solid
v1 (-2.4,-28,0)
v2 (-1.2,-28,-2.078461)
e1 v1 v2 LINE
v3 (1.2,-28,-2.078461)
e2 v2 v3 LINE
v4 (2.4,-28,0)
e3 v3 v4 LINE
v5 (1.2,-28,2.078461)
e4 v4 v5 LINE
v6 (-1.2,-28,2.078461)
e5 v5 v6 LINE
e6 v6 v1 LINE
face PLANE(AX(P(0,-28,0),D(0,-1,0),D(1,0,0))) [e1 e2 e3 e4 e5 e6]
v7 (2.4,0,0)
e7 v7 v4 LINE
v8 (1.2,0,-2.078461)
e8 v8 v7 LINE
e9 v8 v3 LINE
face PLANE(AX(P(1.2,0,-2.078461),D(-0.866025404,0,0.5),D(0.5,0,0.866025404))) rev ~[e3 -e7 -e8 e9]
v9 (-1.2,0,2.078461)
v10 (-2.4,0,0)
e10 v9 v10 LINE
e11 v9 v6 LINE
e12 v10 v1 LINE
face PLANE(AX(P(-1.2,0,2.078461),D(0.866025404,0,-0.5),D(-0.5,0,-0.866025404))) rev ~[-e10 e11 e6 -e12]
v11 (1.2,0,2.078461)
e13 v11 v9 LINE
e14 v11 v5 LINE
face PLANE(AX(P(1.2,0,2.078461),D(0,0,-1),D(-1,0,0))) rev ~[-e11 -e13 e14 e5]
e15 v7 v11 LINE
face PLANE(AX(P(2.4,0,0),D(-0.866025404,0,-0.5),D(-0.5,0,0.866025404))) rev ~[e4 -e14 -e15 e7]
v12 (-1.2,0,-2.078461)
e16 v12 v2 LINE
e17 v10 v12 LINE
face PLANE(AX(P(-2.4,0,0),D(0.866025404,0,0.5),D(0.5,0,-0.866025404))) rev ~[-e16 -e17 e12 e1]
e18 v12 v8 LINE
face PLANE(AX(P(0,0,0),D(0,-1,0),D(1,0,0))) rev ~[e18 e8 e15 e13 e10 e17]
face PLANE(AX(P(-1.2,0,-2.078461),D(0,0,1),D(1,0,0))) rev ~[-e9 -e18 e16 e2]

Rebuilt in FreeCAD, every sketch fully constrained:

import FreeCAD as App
import Part
import Sketcher
Q = App.Units.Quantity

doc = App.newDocument("Part")
body = doc.addObject("PartDesign::Body", "Body")

sketch1 = body.newObject("Sketcher::SketchObject", "Sketch")
sketch1.AttachmentSupport = (doc.getObject("XZ_Plane"), [""])
sketch1.MapMode = "FlatFace"
sketch1.addGeometry([
    Part.LineSegment(App.Vector(7, 12, 0), App.Vector(-7, 12, 0)),
    Part.LineSegment(App.Vector(-7, 12, 0), App.Vector(-13, 0, 0)),
    Part.LineSegment(App.Vector(-13, 0, 0), App.Vector(-7, -12, 0)),
    Part.LineSegment(App.Vector(-7, -12, 0), App.Vector(7, -12, 0)),
    Part.LineSegment(App.Vector(7, -12, 0), App.Vector(13, 0, 0)),
    Part.LineSegment(App.Vector(13, 0, 0), App.Vector(7, 12, 0)),
], False)
sketch1.addConstraint([
    Sketcher.Constraint("Coincident", 0, 2, 1, 1),
    Sketcher.Constraint("Coincident", 1, 2, 2, 1),
    Sketcher.Constraint("Coincident", 2, 2, 3, 1),
    Sketcher.Constraint("Coincident", 3, 2, 4, 1),
    Sketcher.Constraint("Coincident", 4, 2, 5, 1),
    Sketcher.Constraint("Coincident", 5, 2, 0, 1),
    Sketcher.Constraint("Horizontal", 0),
    Sketcher.Constraint("Horizontal", 3),
    Sketcher.Constraint("Symmetric", 0, 2, 3, 2, -1, 1),
    Sketcher.Constraint("Symmetric", 1, 2, 4, 2, -1, 1),
    Sketcher.Constraint("PointOnObject", 1, 2, -1),
    Sketcher.Constraint("Parallel", 2, 5),
    Sketcher.Constraint("Vertical", 0, 2, 2, 2),
    Sketcher.Constraint("Angle", 1, Q("-120 deg")),
    Sketcher.Constraint("DistanceX", 0, 2, 0, 1, 13.293179),
    Sketcher.Constraint("Distance", 1, 13.293179),
])
pad1 = body.newObject("PartDesign::Pad", "Pad")
pad1.Profile = sketch1
pad1.Length = 28
body2 = doc.addObject("PartDesign::Body", "Body001")

sketch2 = body2.newObject("Sketcher::SketchObject", "Sketch001")
sketch2.AttachmentSupport = (doc.getObject("XZ_Plane001"), [""])
sketch2.MapMode = "FlatFace"
sketch2.addGeometry([
    Part.LineSegment(App.Vector(1.2, 2.1, 0), App.Vector(-1.2, 2.1, 0)),
    Part.LineSegment(App.Vector(-1.2, 2.1, 0), App.Vector(-2.4, 0, 0)),
    Part.LineSegment(App.Vector(-2.4, 0, 0), App.Vector(-1.2, -2.1, 0)),
    Part.LineSegment(App.Vector(-1.2, -2.1, 0), App.Vector(1.2, -2.1, 0)),
    Part.LineSegment(App.Vector(1.2, -2.1, 0), App.Vector(2.4, 0, 0)),
    Part.LineSegment(App.Vector(2.4, 0, 0), App.Vector(1.2, 2.1, 0)),
], False)
sketch2.addConstraint([
    Sketcher.Constraint("Coincident", 0, 2, 1, 1),
    Sketcher.Constraint("Coincident", 1, 2, 2, 1),
    Sketcher.Constraint("Coincident", 2, 2, 3, 1),
    Sketcher.Constraint("Coincident", 3, 2, 4, 1),
    Sketcher.Constraint("Coincident", 4, 2, 5, 1),
    Sketcher.Constraint("Coincident", 5, 2, 0, 1),
    Sketcher.Constraint("Horizontal", 0),
    Sketcher.Constraint("Horizontal", 3),
    Sketcher.Constraint("Symmetric", 0, 2, 3, 2, -1, 1),
    Sketcher.Constraint("Symmetric", 1, 2, 4, 2, -1, 1),
    Sketcher.Constraint("PointOnObject", 1, 2, -1),
    Sketcher.Constraint("Parallel", 2, 5),
    Sketcher.Constraint("Vertical", 0, 2, 2, 2),
    Sketcher.Constraint("Angle", 1, Q("-120 deg")),
    Sketcher.Constraint("DistanceX", 0, 2, 0, 1, 2.4),
    Sketcher.Constraint("Distance", 1, 2.4),
])
pad2 = body2.newObject("PartDesign::Pad", "Pad001")
pad2.Profile = sketch2
pad2.Length = 28
body.Visibility = False

doc.recompute()
